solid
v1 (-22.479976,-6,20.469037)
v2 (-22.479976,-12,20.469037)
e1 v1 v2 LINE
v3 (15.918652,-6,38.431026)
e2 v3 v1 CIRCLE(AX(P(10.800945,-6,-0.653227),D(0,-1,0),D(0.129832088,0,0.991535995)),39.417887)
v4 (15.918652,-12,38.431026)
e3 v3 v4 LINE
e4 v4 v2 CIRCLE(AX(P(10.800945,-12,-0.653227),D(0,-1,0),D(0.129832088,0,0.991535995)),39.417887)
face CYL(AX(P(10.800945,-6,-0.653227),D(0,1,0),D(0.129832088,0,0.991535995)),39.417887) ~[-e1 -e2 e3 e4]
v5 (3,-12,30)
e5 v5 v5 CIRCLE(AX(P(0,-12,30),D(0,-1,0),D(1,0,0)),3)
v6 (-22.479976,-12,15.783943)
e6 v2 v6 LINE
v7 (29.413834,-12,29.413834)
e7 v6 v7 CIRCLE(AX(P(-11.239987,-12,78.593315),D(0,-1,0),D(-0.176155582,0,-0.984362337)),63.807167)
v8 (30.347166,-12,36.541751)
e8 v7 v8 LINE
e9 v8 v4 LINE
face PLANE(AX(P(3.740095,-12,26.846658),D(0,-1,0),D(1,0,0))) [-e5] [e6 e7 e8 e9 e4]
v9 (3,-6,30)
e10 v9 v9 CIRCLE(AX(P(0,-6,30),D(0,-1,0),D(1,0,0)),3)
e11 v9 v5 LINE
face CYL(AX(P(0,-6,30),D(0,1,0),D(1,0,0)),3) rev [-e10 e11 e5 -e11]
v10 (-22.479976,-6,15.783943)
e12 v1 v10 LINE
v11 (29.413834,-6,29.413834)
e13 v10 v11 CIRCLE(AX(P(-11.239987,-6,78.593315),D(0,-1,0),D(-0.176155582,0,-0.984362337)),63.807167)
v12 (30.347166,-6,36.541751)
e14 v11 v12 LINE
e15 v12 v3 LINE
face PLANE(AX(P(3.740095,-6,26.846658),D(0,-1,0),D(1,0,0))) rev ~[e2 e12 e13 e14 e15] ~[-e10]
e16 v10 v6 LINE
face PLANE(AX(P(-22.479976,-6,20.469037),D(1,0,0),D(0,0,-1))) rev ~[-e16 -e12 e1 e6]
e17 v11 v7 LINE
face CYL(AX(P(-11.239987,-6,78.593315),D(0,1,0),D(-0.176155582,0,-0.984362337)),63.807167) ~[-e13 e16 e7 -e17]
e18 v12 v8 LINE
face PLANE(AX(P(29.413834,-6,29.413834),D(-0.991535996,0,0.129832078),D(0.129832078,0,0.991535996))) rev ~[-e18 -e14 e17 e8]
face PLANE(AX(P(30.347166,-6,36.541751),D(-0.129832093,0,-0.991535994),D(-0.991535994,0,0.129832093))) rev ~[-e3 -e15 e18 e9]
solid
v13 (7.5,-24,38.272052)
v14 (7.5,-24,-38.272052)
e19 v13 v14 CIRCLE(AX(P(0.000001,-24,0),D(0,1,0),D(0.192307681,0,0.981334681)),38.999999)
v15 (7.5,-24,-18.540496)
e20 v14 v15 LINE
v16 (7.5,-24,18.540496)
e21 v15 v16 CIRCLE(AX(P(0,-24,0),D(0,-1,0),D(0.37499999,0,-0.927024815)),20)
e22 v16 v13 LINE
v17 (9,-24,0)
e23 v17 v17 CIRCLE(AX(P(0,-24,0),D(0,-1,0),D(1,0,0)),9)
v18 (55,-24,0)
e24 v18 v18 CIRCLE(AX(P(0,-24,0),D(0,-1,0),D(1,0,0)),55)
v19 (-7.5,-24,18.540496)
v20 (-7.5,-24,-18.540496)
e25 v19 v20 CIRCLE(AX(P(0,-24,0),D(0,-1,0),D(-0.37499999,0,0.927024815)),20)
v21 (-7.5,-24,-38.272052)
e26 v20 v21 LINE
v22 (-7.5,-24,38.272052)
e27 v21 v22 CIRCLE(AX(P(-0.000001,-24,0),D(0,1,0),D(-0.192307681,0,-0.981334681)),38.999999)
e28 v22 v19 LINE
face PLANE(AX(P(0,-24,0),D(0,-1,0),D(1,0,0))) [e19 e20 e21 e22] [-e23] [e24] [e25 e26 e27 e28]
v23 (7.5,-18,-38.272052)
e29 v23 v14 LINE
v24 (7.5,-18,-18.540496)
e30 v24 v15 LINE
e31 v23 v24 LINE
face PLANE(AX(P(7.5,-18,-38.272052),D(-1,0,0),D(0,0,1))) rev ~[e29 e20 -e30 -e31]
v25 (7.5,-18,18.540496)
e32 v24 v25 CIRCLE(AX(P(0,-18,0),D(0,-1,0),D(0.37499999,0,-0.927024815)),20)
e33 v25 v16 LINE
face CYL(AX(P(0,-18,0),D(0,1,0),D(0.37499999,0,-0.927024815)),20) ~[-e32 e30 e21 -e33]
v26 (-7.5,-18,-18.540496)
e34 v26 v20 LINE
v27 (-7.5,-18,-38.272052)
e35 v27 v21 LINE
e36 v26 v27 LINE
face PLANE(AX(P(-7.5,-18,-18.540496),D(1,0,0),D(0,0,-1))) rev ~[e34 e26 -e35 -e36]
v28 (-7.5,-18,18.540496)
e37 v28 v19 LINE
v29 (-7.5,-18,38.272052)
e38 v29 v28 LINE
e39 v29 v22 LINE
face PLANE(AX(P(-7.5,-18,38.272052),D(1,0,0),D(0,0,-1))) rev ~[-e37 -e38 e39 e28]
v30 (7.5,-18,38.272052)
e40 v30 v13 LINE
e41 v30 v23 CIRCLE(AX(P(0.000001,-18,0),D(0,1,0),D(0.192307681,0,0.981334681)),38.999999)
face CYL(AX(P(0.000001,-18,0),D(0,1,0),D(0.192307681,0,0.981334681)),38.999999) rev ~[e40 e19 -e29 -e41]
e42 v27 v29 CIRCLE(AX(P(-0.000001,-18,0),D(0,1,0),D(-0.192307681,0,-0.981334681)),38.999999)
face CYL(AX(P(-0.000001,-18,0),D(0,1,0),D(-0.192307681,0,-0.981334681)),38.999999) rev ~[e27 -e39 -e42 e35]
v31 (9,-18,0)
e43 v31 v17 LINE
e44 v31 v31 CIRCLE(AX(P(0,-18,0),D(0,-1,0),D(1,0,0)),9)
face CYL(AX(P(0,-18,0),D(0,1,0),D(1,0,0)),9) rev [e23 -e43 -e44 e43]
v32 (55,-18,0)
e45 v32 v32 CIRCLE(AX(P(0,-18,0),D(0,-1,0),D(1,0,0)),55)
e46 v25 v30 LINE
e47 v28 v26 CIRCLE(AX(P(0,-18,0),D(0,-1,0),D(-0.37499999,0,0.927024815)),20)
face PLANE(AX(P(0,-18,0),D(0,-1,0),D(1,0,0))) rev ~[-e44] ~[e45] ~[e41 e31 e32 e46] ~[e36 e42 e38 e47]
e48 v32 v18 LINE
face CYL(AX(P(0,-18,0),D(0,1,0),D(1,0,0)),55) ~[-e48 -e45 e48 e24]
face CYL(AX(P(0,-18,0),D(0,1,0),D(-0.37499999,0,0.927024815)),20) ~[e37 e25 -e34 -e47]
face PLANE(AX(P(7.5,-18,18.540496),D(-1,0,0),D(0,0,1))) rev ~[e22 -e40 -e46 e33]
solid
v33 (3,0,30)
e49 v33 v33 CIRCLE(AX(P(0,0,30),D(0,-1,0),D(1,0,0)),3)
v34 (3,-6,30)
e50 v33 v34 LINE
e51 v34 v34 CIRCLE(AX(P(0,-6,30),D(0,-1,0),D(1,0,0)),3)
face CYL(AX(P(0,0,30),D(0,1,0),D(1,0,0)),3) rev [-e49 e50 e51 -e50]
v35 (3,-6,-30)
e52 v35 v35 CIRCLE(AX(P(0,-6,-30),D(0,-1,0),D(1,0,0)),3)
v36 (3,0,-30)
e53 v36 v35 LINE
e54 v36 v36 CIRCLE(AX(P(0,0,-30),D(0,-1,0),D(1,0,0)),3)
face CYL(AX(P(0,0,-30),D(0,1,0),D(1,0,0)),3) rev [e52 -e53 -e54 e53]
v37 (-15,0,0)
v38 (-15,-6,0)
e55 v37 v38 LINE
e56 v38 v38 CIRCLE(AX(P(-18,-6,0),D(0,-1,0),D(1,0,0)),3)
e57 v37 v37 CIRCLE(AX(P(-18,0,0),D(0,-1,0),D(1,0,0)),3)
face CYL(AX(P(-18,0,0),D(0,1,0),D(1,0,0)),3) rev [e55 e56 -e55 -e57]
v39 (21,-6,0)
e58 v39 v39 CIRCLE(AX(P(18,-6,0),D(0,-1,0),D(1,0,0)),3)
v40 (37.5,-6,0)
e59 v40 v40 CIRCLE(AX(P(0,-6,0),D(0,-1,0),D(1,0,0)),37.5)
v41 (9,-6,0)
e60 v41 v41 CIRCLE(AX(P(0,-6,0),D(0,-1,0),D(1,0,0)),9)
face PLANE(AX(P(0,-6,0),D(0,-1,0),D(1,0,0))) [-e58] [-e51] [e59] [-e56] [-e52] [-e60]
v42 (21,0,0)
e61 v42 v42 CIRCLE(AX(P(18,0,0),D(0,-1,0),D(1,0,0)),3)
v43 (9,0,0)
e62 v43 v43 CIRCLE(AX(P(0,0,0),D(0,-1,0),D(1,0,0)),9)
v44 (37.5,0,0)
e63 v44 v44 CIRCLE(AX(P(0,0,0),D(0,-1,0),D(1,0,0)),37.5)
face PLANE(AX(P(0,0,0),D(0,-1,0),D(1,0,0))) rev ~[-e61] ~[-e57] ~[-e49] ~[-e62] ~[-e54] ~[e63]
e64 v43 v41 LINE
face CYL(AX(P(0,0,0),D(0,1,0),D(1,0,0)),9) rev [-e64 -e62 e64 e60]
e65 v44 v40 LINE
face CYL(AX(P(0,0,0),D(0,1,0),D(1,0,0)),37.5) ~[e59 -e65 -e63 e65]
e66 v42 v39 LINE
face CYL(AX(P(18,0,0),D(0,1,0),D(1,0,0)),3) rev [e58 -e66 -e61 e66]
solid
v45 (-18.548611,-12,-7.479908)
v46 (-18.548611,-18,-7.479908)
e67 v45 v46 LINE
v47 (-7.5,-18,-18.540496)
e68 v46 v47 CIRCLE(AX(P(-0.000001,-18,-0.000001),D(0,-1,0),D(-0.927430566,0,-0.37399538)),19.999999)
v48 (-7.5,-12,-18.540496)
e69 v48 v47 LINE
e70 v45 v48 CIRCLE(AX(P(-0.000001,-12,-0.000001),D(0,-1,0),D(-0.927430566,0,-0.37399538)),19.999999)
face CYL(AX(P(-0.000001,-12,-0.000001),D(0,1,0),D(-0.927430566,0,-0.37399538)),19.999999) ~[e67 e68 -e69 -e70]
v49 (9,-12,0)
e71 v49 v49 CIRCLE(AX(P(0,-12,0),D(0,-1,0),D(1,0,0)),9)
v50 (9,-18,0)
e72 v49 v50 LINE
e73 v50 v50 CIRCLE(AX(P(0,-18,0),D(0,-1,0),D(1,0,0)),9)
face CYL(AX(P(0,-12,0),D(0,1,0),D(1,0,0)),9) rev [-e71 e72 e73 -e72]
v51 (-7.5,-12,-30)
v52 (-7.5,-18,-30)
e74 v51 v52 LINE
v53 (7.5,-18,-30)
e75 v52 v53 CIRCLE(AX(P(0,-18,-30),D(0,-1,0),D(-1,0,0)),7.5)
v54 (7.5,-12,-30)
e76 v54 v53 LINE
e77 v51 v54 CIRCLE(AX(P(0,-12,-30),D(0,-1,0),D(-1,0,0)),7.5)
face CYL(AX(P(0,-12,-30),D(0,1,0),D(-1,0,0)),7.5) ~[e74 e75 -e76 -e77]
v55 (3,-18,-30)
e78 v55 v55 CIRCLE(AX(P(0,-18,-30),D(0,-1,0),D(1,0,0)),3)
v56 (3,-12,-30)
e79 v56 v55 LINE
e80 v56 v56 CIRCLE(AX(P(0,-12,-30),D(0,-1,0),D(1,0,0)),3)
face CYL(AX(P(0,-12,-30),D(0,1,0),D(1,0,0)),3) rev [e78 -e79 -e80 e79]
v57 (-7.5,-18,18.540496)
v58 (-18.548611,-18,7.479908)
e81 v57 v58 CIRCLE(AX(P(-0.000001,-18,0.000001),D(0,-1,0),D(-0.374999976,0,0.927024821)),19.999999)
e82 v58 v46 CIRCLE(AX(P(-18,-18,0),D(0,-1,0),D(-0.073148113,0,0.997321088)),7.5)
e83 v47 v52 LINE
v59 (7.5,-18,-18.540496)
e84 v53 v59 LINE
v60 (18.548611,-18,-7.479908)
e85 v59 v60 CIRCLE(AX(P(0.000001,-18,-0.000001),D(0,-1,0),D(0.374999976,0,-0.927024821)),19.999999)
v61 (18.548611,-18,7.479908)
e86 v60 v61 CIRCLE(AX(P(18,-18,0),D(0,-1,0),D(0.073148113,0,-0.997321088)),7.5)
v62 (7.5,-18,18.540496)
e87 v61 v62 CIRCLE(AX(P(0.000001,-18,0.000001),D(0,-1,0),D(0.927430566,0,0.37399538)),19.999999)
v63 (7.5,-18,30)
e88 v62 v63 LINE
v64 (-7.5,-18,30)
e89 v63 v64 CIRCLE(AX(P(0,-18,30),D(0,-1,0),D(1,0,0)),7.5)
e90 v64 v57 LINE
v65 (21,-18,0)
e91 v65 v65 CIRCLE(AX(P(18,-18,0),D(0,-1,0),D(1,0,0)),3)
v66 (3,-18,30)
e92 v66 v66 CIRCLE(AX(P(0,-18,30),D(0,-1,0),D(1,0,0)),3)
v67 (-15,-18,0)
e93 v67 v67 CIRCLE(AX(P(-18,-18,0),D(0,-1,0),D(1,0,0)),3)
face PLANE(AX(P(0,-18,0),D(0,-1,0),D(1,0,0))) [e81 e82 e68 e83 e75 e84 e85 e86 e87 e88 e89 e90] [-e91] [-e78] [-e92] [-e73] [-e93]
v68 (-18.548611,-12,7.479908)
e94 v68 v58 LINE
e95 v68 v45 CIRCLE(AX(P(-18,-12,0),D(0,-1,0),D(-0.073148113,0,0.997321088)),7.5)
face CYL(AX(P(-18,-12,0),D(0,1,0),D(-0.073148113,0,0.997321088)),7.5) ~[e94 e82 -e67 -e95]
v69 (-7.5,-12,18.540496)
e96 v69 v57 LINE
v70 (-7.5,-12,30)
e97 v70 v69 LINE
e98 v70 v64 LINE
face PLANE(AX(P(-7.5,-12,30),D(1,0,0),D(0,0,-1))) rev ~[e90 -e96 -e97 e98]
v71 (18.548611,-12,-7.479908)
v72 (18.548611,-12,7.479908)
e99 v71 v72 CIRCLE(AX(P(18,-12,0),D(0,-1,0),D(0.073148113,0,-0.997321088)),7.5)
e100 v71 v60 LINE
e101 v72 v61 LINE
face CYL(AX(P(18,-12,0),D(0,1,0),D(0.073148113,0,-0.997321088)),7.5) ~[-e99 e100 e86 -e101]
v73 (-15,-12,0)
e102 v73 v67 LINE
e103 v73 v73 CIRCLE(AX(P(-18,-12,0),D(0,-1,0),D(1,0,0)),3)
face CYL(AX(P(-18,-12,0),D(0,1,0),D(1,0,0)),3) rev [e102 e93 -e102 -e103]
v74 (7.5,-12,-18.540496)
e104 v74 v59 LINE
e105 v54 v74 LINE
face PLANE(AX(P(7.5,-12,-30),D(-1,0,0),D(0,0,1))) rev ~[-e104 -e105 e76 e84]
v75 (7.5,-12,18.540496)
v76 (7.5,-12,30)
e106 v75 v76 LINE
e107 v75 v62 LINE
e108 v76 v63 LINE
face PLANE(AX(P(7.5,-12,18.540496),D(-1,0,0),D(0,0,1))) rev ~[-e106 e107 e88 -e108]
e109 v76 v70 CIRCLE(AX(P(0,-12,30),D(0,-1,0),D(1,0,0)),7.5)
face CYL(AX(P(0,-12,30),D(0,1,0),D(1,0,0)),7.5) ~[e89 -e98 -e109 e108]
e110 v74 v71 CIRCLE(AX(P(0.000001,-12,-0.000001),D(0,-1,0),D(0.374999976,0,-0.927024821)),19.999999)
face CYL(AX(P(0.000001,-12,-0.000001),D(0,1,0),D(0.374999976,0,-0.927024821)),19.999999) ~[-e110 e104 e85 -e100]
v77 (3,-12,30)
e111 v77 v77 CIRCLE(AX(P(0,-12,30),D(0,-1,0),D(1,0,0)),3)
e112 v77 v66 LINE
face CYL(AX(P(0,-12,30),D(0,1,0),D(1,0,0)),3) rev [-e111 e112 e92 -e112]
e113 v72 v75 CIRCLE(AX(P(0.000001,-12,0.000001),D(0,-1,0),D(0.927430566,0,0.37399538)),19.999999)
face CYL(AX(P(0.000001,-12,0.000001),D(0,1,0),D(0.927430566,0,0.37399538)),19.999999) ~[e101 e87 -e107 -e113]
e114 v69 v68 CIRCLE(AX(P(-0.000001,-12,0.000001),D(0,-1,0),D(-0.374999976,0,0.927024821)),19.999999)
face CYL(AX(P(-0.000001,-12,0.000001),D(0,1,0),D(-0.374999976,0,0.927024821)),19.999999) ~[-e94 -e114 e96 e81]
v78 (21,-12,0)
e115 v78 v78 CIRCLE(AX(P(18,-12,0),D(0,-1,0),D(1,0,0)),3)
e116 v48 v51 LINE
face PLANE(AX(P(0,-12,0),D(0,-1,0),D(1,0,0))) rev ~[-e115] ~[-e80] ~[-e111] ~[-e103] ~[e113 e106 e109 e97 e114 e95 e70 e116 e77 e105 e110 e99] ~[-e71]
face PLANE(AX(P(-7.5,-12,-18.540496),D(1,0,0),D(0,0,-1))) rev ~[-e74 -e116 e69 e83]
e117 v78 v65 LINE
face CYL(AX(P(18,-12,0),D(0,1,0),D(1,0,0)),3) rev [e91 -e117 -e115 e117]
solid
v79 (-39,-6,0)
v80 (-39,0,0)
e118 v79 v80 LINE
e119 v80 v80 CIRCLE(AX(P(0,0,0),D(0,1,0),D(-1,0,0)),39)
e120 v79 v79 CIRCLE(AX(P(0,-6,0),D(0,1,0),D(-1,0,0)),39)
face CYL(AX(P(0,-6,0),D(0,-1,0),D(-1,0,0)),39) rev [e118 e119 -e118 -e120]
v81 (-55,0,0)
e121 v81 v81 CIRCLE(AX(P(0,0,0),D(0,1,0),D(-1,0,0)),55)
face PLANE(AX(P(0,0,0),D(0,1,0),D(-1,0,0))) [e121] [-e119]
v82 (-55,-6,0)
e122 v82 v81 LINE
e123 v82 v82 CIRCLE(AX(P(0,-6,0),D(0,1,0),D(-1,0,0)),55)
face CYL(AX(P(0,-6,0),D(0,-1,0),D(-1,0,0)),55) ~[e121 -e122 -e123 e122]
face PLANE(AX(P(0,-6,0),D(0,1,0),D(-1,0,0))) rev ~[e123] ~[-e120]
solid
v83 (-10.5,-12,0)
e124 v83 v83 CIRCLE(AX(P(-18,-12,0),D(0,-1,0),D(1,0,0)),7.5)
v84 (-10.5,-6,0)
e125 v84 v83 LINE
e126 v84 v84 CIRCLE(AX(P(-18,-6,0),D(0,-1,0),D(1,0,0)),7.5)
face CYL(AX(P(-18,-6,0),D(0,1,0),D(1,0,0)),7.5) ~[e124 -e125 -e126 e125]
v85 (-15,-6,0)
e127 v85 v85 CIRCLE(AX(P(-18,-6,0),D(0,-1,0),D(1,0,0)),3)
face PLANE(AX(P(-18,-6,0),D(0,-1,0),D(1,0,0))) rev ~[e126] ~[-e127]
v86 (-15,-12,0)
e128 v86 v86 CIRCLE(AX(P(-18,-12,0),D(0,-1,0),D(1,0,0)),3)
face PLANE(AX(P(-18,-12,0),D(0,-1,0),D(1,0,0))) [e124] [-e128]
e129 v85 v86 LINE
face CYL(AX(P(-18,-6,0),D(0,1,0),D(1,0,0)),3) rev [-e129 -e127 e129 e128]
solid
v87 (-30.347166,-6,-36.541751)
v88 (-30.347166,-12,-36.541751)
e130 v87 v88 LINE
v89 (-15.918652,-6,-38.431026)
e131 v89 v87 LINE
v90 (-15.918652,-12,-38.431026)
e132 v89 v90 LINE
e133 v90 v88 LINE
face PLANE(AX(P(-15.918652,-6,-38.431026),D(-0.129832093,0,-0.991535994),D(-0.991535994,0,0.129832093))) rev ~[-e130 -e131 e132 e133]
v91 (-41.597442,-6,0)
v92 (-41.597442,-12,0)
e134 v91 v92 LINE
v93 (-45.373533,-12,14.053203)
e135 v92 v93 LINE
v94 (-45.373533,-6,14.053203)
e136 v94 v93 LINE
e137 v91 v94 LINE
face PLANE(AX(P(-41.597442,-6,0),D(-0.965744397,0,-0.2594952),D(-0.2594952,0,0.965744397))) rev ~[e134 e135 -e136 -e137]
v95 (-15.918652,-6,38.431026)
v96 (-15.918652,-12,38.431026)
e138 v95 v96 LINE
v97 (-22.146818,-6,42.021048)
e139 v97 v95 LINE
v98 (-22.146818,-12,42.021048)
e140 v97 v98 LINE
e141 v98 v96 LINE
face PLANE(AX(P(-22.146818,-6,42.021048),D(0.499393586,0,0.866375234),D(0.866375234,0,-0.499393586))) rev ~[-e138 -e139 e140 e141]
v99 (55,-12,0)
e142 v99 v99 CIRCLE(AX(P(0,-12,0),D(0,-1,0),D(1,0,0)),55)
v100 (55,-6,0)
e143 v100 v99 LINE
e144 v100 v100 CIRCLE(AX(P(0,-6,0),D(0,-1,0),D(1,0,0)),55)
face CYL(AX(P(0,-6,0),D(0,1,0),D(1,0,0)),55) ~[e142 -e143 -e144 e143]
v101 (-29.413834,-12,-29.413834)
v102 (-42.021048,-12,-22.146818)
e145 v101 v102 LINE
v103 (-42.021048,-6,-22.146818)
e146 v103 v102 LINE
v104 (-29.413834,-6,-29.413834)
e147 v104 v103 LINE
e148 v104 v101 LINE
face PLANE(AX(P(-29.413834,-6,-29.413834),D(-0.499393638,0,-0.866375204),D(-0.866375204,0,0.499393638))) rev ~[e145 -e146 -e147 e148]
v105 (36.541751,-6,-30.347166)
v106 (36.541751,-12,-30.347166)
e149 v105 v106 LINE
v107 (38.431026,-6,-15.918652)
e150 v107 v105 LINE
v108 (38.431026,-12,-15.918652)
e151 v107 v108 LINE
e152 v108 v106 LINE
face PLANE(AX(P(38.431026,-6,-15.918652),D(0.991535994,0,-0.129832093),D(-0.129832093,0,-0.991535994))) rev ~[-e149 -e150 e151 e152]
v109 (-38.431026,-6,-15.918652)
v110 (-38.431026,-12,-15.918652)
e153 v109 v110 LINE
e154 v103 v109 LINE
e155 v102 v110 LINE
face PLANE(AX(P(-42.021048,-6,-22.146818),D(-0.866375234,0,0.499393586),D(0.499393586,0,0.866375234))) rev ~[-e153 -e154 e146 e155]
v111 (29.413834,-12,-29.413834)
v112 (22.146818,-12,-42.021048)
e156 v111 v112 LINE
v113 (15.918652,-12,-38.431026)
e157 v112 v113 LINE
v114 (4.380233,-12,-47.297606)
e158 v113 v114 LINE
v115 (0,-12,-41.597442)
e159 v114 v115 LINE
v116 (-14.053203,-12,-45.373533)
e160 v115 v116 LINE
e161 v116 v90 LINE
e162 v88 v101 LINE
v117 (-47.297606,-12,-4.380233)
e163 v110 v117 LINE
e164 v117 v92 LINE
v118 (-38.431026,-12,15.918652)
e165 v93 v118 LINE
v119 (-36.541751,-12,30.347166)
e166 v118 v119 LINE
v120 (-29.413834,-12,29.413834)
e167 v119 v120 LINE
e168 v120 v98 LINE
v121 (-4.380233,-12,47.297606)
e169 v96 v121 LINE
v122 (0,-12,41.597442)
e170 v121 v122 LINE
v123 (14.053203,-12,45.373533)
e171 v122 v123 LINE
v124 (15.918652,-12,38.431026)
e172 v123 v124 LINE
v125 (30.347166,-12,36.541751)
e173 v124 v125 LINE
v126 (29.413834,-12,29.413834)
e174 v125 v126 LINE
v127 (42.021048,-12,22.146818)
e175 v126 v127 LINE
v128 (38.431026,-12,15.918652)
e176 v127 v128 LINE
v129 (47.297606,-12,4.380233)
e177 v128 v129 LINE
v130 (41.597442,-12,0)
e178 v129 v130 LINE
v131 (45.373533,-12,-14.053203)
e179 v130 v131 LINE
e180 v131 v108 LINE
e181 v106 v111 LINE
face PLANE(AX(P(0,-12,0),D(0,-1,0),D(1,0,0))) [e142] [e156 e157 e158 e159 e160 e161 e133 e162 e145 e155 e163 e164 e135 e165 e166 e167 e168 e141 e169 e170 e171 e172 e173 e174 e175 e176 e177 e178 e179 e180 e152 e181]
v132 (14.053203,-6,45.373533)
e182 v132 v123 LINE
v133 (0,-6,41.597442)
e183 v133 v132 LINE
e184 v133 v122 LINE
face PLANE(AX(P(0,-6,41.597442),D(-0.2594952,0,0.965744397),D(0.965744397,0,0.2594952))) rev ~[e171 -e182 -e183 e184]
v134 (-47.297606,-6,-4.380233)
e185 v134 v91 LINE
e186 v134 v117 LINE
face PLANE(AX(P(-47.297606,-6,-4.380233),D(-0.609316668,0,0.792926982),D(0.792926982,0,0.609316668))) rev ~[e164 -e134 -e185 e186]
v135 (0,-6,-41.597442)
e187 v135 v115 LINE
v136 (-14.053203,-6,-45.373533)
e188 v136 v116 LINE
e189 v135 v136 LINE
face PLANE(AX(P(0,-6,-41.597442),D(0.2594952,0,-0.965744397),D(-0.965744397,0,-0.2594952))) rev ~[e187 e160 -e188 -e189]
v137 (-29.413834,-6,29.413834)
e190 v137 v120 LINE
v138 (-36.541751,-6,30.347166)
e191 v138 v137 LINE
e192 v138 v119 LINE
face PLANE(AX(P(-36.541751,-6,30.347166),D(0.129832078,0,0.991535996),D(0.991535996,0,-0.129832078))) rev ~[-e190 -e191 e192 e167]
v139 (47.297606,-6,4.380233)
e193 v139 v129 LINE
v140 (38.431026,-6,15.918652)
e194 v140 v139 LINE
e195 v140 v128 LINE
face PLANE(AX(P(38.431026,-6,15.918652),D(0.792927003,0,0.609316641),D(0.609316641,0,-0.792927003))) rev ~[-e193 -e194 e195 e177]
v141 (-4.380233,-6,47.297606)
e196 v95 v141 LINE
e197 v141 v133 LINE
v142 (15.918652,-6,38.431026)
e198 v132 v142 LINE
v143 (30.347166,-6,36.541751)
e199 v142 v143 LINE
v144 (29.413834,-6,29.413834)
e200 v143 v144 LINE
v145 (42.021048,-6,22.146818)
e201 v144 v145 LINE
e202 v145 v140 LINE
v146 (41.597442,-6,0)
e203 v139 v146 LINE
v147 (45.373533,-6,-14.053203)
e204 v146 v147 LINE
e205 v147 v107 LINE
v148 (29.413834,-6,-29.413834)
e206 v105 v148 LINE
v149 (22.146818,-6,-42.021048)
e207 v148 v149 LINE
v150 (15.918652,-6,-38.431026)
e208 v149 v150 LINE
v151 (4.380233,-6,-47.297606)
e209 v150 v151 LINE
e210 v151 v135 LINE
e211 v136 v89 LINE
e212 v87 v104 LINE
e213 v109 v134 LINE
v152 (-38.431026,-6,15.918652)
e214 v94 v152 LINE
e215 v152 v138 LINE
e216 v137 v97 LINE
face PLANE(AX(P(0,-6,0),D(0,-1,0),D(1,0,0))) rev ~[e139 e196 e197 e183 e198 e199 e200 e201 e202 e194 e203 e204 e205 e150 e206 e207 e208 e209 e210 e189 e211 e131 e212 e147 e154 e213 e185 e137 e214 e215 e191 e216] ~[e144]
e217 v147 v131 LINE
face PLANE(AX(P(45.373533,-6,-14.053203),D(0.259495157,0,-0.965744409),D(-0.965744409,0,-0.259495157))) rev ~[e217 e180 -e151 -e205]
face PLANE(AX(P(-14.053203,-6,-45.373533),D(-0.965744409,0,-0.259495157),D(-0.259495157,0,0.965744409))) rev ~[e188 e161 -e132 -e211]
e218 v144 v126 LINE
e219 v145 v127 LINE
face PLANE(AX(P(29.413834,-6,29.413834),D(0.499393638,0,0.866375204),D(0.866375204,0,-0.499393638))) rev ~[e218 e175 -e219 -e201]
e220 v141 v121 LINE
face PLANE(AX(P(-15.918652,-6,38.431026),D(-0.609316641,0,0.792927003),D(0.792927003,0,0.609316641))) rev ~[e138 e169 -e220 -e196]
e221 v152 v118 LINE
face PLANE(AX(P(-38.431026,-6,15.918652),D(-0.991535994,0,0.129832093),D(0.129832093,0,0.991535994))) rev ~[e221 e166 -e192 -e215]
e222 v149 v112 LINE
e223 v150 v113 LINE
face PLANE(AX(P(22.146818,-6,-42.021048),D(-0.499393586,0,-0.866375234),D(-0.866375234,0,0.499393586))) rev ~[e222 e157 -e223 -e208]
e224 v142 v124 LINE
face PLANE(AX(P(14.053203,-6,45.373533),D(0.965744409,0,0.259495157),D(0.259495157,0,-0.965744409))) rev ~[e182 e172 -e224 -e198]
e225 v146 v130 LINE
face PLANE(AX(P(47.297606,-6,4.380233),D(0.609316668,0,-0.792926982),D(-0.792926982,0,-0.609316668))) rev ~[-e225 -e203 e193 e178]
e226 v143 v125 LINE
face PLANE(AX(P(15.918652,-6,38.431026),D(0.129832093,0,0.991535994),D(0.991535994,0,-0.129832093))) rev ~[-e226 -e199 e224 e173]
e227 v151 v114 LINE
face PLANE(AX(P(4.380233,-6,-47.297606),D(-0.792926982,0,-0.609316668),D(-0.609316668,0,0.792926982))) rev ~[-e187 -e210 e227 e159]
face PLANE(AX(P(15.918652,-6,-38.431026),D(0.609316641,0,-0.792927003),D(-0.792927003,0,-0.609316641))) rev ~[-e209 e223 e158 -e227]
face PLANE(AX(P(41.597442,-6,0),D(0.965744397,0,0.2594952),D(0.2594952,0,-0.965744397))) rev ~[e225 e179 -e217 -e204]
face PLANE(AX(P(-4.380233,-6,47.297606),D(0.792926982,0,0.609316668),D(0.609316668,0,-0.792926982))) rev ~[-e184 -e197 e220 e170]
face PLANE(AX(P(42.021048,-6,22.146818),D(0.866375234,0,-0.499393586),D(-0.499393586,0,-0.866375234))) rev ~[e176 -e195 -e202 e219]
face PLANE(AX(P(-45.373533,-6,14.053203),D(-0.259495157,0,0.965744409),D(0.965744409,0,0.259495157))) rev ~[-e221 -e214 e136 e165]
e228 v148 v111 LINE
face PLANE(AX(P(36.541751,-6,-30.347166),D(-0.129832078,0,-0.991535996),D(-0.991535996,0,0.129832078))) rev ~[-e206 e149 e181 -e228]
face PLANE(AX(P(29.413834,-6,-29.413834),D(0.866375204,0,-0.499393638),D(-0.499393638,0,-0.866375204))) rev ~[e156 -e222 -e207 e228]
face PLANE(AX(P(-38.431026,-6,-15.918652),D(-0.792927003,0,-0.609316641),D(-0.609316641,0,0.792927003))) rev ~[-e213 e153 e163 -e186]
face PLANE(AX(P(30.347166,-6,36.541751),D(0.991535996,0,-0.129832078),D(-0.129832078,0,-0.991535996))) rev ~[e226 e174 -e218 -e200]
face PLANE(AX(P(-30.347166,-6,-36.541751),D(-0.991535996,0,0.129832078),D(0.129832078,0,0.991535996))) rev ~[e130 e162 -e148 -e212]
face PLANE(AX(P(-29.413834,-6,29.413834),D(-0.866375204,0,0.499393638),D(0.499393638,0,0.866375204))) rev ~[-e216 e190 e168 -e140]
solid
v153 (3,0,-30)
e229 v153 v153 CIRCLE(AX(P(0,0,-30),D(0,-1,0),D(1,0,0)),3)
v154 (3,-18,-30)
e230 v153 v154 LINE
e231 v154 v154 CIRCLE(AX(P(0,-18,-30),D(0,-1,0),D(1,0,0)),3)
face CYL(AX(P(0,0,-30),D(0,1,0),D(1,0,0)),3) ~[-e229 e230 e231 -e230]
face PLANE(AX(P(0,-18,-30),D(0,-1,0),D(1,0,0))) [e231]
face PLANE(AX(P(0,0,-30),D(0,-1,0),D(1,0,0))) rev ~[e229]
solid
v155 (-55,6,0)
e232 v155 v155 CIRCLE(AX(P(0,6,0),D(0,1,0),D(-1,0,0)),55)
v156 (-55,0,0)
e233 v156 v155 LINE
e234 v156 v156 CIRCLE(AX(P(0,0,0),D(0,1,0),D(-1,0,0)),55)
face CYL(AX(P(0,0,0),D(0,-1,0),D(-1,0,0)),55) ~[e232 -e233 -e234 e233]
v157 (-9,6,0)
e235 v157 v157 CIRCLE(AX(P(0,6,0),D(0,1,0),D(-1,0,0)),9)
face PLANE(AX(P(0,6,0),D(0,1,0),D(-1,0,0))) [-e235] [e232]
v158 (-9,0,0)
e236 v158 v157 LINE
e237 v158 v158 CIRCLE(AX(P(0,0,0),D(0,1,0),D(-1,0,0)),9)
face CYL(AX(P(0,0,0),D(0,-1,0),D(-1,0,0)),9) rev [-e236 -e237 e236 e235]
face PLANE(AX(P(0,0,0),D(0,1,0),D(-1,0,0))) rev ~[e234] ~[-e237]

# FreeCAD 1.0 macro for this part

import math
import FreeCAD as App
import Part
import Sketcher

V = App.Vector

doc = App.newDocument("Part")
body = doc.addObject("PartDesign::Body", "Body")

sketch1 = body.newObject("Sketcher::SketchObject", "Sketch")
sketch1.AttachmentSupport = (doc.getObject("XZ_Plane"), [""])
sketch1.MapMode = "FlatFace"
sketch1.addGeometry(Part.Circle(V(0, 0, 0), V(0, 0, 1), 37.5), False)
sketch1.addGeometry(Part.Circle(V(0, -30, 0), V(0, 0, 1), 3), False)
sketch1.addGeometry(Part.Circle(V(-18, 0, 0), V(0, 0, 1), 3), False)
sketch1.addGeometry(Part.Circle(V(0, 0, 0), V(0, 0, 1), 9), False)
sketch1.addGeometry(Part.Circle(V(18, 0, 0), V(0, 0, 1), 3), False)
sketch1.addGeometry(Part.Circle(V(0, 30, 0), V(0, 0, 1), 3), False)
sketch1.addConstraint(Sketcher.Constraint("Coincident", 0, 3, -1, 1))
sketch1.addConstraint(Sketcher.Constraint("Coincident", 3, 3, -1, 1))
sketch1.addConstraint(Sketcher.Constraint("Equal", 1, 2))
sketch1.addConstraint(Sketcher.Constraint("Equal", 2, 4))
sketch1.addConstraint(Sketcher.Constraint("Equal", 4, 5))
sketch1.addConstraint(Sketcher.Constraint("Symmetric", 2, 3, 4, 3, -1, 1))
sketch1.addConstraint(Sketcher.Constraint("Symmetric", 1, 3, 5, 3, -1, 1))
sketch1.addConstraint(Sketcher.Constraint("PointOnObject", 1, 3, -2))
sketch1.addConstraint(Sketcher.Constraint("PointOnObject", 2, 3, -1))
sketch1.addConstraint(Sketcher.Constraint("Diameter", 0, 75.0))
sketch1.addConstraint(Sketcher.Constraint("Diameter", 1, 6.0))
sketch1.addConstraint(Sketcher.Constraint("Diameter", 3, 18.0))
sketch1.addConstraint(Sketcher.Constraint("DistanceY", 1, 3, -1, 1, 30.0))
sketch1.addConstraint(Sketcher.Constraint("DistanceX", 2, 3, -1, 1, 18.0))
pad1 = body.newObject("PartDesign::Pad", "Pad")
pad1.Profile = sketch1
pad1.Length = 6
body2 = doc.addObject("PartDesign::Body", "Body001")

sketch2 = body2.newObject("Sketcher::SketchObject", "Sketch001")
sketch2.AttachmentSupport = (doc.getObject("XZ_Plane001"), [""])
sketch2.MapMode = "FlatFace"
sketch2.AttachmentOffset = App.Placement(V(0, 0, 6), App.Rotation())
sketch2.addGeometry(Part.Circle(V(0, 0, 0), V(0, 0, 1), 55), False)
sketch2.addGeometry(Part.LineSegment(V(29.413834, 29.413834, 0), V(42.021048, 22.146818, 0)), False)
sketch2.addGeometry(Part.LineSegment(V(42.021048, 22.146818, 0), V(38.431026, 15.918652, 0)), False)
sketch2.addGeometry(Part.LineSegment(V(38.431026, 15.918652, 0), V(47.297606, 4.380233, 0)), False)
sketch2.addGeometry(Part.LineSegment(V(47.297606, 4.380233, 0), V(41.597442, 0, 0)), False)
sketch2.addGeometry(Part.LineSegment(V(41.597442, 0, 0), V(45.373533, -14.053203, 0)), False)
sketch2.addGeometry(Part.LineSegment(V(45.373533, -14.053203, 0), V(38.431026, -15.918652, 0)), False)
sketch2.addGeometry(Part.LineSegment(V(38.431026, -15.918652, 0), V(36.541751, -30.347166, 0)), False)
sketch2.addGeometry(Part.LineSegment(V(36.541751, -30.347166, 0), V(29.413834, -29.413834, 0)), False)
sketch2.addGeometry(Part.LineSegment(V(29.413834, -29.413834, 0), V(22.146818, -42.021048, 0)), False)
sketch2.addGeometry(Part.LineSegment(V(22.146818, -42.021048, 0), V(15.918652, -38.431026, 0)), False)
sketch2.addGeometry(Part.LineSegment(V(15.918652, -38.431026, 0), V(4.380233, -47.297606, 0)), False)
sketch2.addGeometry(Part.LineSegment(V(4.380233, -47.297606, 0), V(0, -41.597442, 0)), False)
sketch2.addGeometry(Part.LineSegment(V(0, -41.597442, 0), V(-14.053203, -45.373533, 0)), False)
sketch2.addGeometry(Part.LineSegment(V(-14.053203, -45.373533, 0), V(-15.918652, -38.431026, 0)), False)
sketch2.addGeometry(Part.LineSegment(V(-15.918652, -38.431026, 0), V(-30.347166, -36.541751, 0)), False)
sketch2.addGeometry(Part.LineSegment(V(-30.347166, -36.541751, 0), V(-29.413834, -29.413834, 0)), False)
sketch2.addGeometry(Part.LineSegment(V(-29.413834, -29.413834, 0), V(-42.021048, -22.146818, 0)), False)
sketch2.addGeometry(Part.LineSegment(V(-42.021048, -22.146818, 0), V(-38.431026, -15.918652, 0)), False)
sketch2.addGeometry(Part.LineSegment(V(-38.431026, -15.918652, 0), V(-47.297606, -4.380233, 0)), False)
sketch2.addGeometry(Part.LineSegment(V(-47.297606, -4.380233, 0), V(-41.597442, 0, 0)), False)
sketch2.addGeometry(Part.LineSegment(V(-41.597442, 0, 0), V(-45.373533, 14.053203, 0)), False)
sketch2.addGeometry(Part.LineSegment(V(-45.373533, 14.053203, 0), V(-38.431026, 15.918652, 0)), False)
sketch2.addGeometry(Part.LineSegment(V(-38.431026, 15.918652, 0), V(-36.541751, 30.347166, 0)), False)
sketch2.addGeometry(Part.LineSegment(V(-36.541751, 30.347166, 0), V(-29.413834, 29.413834, 0)), False)
sketch2.addGeometry(Part.LineSegment(V(-29.413834, 29.413834, 0), V(-22.146818, 42.021048, 0)), False)
sketch2.addGeometry(Part.LineSegment(V(-22.146818, 42.021048, 0), V(-15.918652, 38.431026, 0)), False)
sketch2.addGeometry(Part.LineSegment(V(-15.918652, 38.431026, 0), V(-4.380233, 47.297606, 0)), False)
sketch2.addGeometry(Part.LineSegment(V(-4.380233, 47.297606, 0), V(0, 41.597442, 0)), False)
sketch2.addGeometry(Part.LineSegment(V(0, 41.597442, 0), V(14.053203, 45.373533, 0)), False)
sketch2.addGeometry(Part.LineSegment(V(14.053203, 45.373533, 0), V(15.918652, 38.431026, 0)), False)
sketch2.addGeometry(Part.LineSegment(V(15.918652, 38.431026, 0), V(30.347166, 36.541751, 0)), False)
sketch2.addGeometry(Part.LineSegment(V(30.347166, 36.541751, 0), V(29.413834, 29.413834, 0)), False)
sketch2.addConstraint(Sketcher.Constraint("Coincident", 1, 2, 2, 1))
sketch2.addConstraint(Sketcher.Constraint("Coincident", 2, 2, 3, 1))
sketch2.addConstraint(Sketcher.Constraint("Coincident", 3, 2, 4, 1))
sketch2.addConstraint(Sketcher.Constraint("Coincident", 4, 2, 5, 1))
sketch2.addConstraint(Sketcher.Constraint("Coincident", 5, 2, 6, 1))
sketch2.addConstraint(Sketcher.Constraint("Coincident", 6, 2, 7, 1))
sketch2.addConstraint(Sketcher.Constraint("Coincident", 7, 2, 8, 1))
sketch2.addConstraint(Sketcher.Constraint("Coincident", 8, 2, 9, 1))
sketch2.addConstraint(Sketcher.Constraint("Coincident", 9, 2, 10, 1))
sketch2.addConstraint(Sketcher.Constraint("Coincident", 10, 2, 11, 1))
sketch2.addConstraint(Sketcher.Constraint("Coincident", 11, 2, 12, 1))
sketch2.addConstraint(Sketcher.Constraint("Coincident", 12, 2, 13, 1))
sketch2.addConstraint(Sketcher.Constraint("Coincident", 13, 2, 14, 1))
sketch2.addConstraint(Sketcher.Constraint("Coincident", 14, 2, 15, 1))
sketch2.addConstraint(Sketcher.Constraint("Coincident", 15, 2, 16, 1))
sketch2.addConstraint(Sketcher.Constraint("Coincident", 16, 2, 17, 1))
sketch2.addConstraint(Sketcher.Constraint("Coincident", 17, 2, 18, 1))
sketch2.addConstraint(Sketcher.Constraint("Coincident", 18, 2, 19, 1))
sketch2.addConstraint(Sketcher.Constraint("Coincident", 19, 2, 20, 1))
sketch2.addConstraint(Sketcher.Constraint("Coincident", 20, 2, 21, 1))
sketch2.addConstraint(Sketcher.Constraint("Coincident", 21, 2, 22, 1))
sketch2.addConstraint(Sketcher.Constraint("Coincident", 22, 2, 23, 1))
sketch2.addConstraint(Sketcher.Constraint("Coincident", 23, 2, 24, 1))
sketch2.addConstraint(Sketcher.Constraint("Coincident", 24, 2, 25, 1))
sketch2.addConstraint(Sketcher.Constraint("Coincident", 25, 2, 26, 1))
sketch2.addConstraint(Sketcher.Constraint("Coincident", 26, 2, 27, 1))
sketch2.addConstraint(Sketcher.Constraint("Coincident", 27, 2, 28, 1))
sketch2.addConstraint(Sketcher.Constraint("Coincident", 28, 2, 29, 1))
sketch2.addConstraint(Sketcher.Constraint("Coincident", 29, 2, 30, 1))
sketch2.addConstraint(Sketcher.Constraint("Coincident", 30, 2, 31, 1))
sketch2.addConstraint(Sketcher.Constraint("Coincident", 31, 2, 32, 1))
sketch2.addConstraint(Sketcher.Constraint("Coincident", 32, 2, 1, 1))
sketch2.addConstraint(Sketcher.Constraint("Coincident", 0, 3, -1, 1))
sketch2.addConstraint(Sketcher.Constraint("Symmetric", 1, 2, 17, 2, -1, 1))
sketch2.addConstraint(Sketcher.Constraint("Symmetric", 2, 2, 18, 2, -1, 1))
sketch2.addConstraint(Sketcher.Constraint("Symmetric", 3, 2, 19, 2, -1, 1))
sketch2.addConstraint(Sketcher.Constraint("Symmetric", 4, 2, 20, 2, -1, 1))
sketch2.addConstraint(Sketcher.Constraint("Symmetric", 5, 2, 21, 2, -1, 1))
sketch2.addConstraint(Sketcher.Constraint("Symmetric", 6, 2, 22, 2, -1, 1))
sketch2.addConstraint(Sketcher.Constraint("Symmetric", 7, 2, 23, 2, -1, 1))
sketch2.addConstraint(Sketcher.Constraint("Symmetric", 8, 2, 24, 2, -1, 1))
sketch2.addConstraint(Sketcher.Constraint("Symmetric", 9, 2, 25, 2, -1, 1))
sketch2.addConstraint(Sketcher.Constraint("Symmetric", 10, 2, 26, 2, -1, 1))
sketch2.addConstraint(Sketcher.Constraint("Symmetric", 11, 2, 27, 2, -1, 1))
sketch2.addConstraint(Sketcher.Constraint("Symmetric", 12, 2, 28, 2, -1, 1))
sketch2.addConstraint(Sketcher.Constraint("Symmetric", 13, 2, 29, 2, -1, 1))
sketch2.addConstraint(Sketcher.Constraint("Symmetric", 14, 2, 30, 2, -1, 1))
sketch2.addConstraint(Sketcher.Constraint("Symmetric", 15, 2, 31, 2, -1, 1))
sketch2.addConstraint(Sketcher.Constraint("Symmetric", 16, 2, 32, 2, -1, 1))
sketch2.addConstraint(Sketcher.Constraint("Symmetric", 10, 2, 14, 2, -2))
sketch2.addConstraint(Sketcher.Constraint("Symmetric", 8, 2, 16, 2, -2))
sketch2.addConstraint(Sketcher.Constraint("Symmetric", 6, 2, 18, 2, -2))
sketch2.addConstraint(Sketcher.Constraint("PointOnObject", 4, 2, -1))
sketch2.addConstraint(Sketcher.Constraint("PointOnObject", 12, 2, -2))
sketch2.addConstraint(Sketcher.Constraint("Perpendicular", 1, 2))
sketch2.addConstraint(Sketcher.Constraint("Perpendicular", 3, 4))
sketch2.addConstraint(Sketcher.Constraint("Perpendicular", 5, 6))
sketch2.addConstraint(Sketcher.Constraint("Perpendicular", 7, 8))
sketch2.addConstraint(Sketcher.Constraint("Parallel", 2, 9))
sketch2.addConstraint(Sketcher.Constraint("Perpendicular", 9, 10))
sketch2.addConstraint(Sketcher.Constraint("Parallel", 4, 11))
sketch2.addConstraint(Sketcher.Constraint("Perpendicular", 11, 12))
sketch2.addConstraint(Sketcher.Constraint("Parallel", 6, 13))
sketch2.addConstraint(Sketcher.Constraint("Perpendicular", 13, 14))
sketch2.addConstraint(Sketcher.Constraint("Parallel", 8, 15))
sketch2.addConstraint(Sketcher.Constraint("Perpendicular", 15, 16))
sketch2.addConstraint(Sketcher.Constraint("Equal", 1, 3))
sketch2.addConstraint(Sketcher.Constraint("Equal", 2, 4))
sketch2.addConstraint(Sketcher.Constraint("Equal", 3, 5))
sketch2.addConstraint(Sketcher.Constraint("Equal", 5, 7))
sketch2.addConstraint(Sketcher.Constraint("Equal", 7, 9))
sketch2.addConstraint(Sketcher.Constraint("Equal", 8, 10))
sketch2.addConstraint(Sketcher.Constraint("Equal", 9, 11))
sketch2.addConstraint(Sketcher.Constraint("Equal", 10, 12))
sketch2.addConstraint(Sketcher.Constraint("Diameter", 0, 110.0))
sketch2.addConstraint(Sketcher.Constraint("DistanceY", 7, 2, 3, 2, 34.727399))
sketch2.addConstraint(Sketcher.Constraint("DistanceX", 8, 2, 5, 2, 15.959699))
sketch2.addConstraint(Sketcher.Constraint("DistanceX", 10, 2, 7, 2, 20.623099))
sketch2.addConstraint(Sketcher.Constraint("DistanceX", 11, 2, 8, 2, 25.033601))
pad2 = body2.newObject("PartDesign::Pad", "Pad001")
pad2.Profile = sketch2
pad2.Length = 6
body3 = doc.addObject("PartDesign::Body", "Body002")

sketch3 = body3.newObject("Sketcher::SketchObject", "Sketch002")
sketch3.AttachmentSupport = (doc.getObject("XZ_Plane002"), [""])
sketch3.MapMode = "FlatFace"
sketch3.AttachmentOffset = App.Placement(V(0, 0, 6), App.Rotation())
sketch3.addGeometry(Part.LineSegment(V(29.413834, 29.413834, 0), V(30.347166, 36.541751, 0)), False)
sketch3.addGeometry(Part.LineSegment(V(30.347166, 36.541751, 0), V(15.918652, 38.431026, 0)), False)
sketch3.addGeometry(Part.ArcOfCircle(Part.Circle(V(10.800945, -0.653227, 0), V(0, 0, 1), 39.417887), math.radians(82.540111), math.radians(147.598098)), False)
sketch3.addGeometry(Part.LineSegment(V(-22.479976, 20.469037, 0), V(-22.479976, 15.783943, 0)), False)
sketch3.addGeometry(Part.ArcOfCircle(Part.Circle(V(-11.239987, 78.593315, 0), V(0, 0, 1), 63.807167), math.radians(-100.145913), math.radians(-50.421437)), False)
sketch3.addGeometry(Part.Circle(V(0, 30, 0), V(0, 0, 1), 3), False)
sketch3.addConstraint(Sketcher.Constraint("Coincident", 0, 2, 1, 1))
sketch3.addConstraint(Sketcher.Constraint("Tangent", 1, 2, 2, 1))
sketch3.addConstraint(Sketcher.Constraint("Coincident", 2, 2, 3, 1))
sketch3.addConstraint(Sketcher.Constraint("Coincident", 3, 2, 4, 1))
sketch3.addConstraint(Sketcher.Constraint("Coincident", 4, 2, 0, 1))
sketch3.addConstraint(Sketcher.Constraint("Vertical", 3))
sketch3.addConstraint(Sketcher.Constraint("PointOnObject", 5, 3, -2))
sketch3.addConstraint(Sketcher.Constraint("Perpendicular", 0, 1))
sketch3.addConstraint(Sketcher.Constraint("Diameter", 5, 6.0))
sketch3.addConstraint(Sketcher.Constraint("DistanceY", -1, 1, 5, 3, 30.0))
sketch3.addConstraint(Sketcher.Constraint("Radius", 2, 39.417887))
sketch3.addConstraint(Sketcher.Constraint("Radius", 4, 63.807167))
sketch3.addConstraint(Sketcher.Constraint("Distance", 1, 14.55168))
sketch3.addConstraint(Sketcher.Constraint("DistanceY", 3, 2, 3, 1, 4.685094))
sketch3.addConstraint(Sketcher.Constraint("DistanceY", -1, 1, 0, 2, 36.541751))
sketch3.addConstraint(Sketcher.Constraint("DistanceX", 2, 3, 0, 2, 19.546221))
sketch3.addConstraint(Sketcher.Constraint("DistanceX", 4, 3, 1, 2, 27.158639))
sketch3.addConstraint(Sketcher.Constraint("DistanceY", 1, 2, 4, 3, 40.162289))
sketch3.addConstraint(Sketcher.Constraint("DistanceX", -1, 1, 2, 3, 10.800945))
pad3 = body3.newObject("PartDesign::Pad", "Pad002")
pad3.Profile = sketch3
pad3.Length = 6
body4 = doc.addObject("PartDesign::Body", "Body003")

sketch4 = body4.newObject("Sketcher::SketchObject", "Sketch003")
sketch4.AttachmentSupport = (doc.getObject("XZ_Plane003"), [""])
sketch4.MapMode = "FlatFace"
sketch4.addGeometry(Part.Circle(V(0, -30, 0), V(0, 0, 1), 3), False)
sketch4.addConstraint(Sketcher.Constraint("PointOnObject", 0, 3, -2))
sketch4.addConstraint(Sketcher.Constraint("Diameter", 0, 6.0))
sketch4.addConstraint(Sketcher.Constraint("DistanceY", 0, 3, -1, 1, 30.0))
pad4 = body4.newObject("PartDesign::Pad", "Pad003")
pad4.Profile = sketch4
pad4.Length = 18
body5 = doc.addObject("PartDesign::Body", "Body004")

sketch5 = body5.newObject("Sketcher::SketchObject", "Sketch004")
sketch5.AttachmentSupport = (doc.getObject("XZ_Plane004"), [""])
sketch5.MapMode = "FlatFace"
sketch5.AttachmentOffset = App.Placement(V(0, 0, 6), App.Rotation())
sketch5.addGeometry(Part.Circle(V(0, 0, 0), V(0, 0, 1), 55), False)
sketch5.addGeometry(Part.Circle(V(0, 0, 0), V(0, 0, 1), 39), False)
sketch5.addConstraint(Sketcher.Constraint("Coincident", 0, 3, -1, 1))
sketch5.addConstraint(Sketcher.Constraint("Coincident", 1, 3, -1, 1))
sketch5.addConstraint(Sketcher.Constraint("Diameter", 0, 110.0))
sketch5.addConstraint(Sketcher.Constraint("Diameter", 1, 78.0))
pad5 = body5.newObject("PartDesign::Pad", "Pad004")
pad5.Profile = sketch5
pad5.Length = 6
pad5.Reversed = True
body6 = doc.addObject("PartDesign::Body", "Body005")

sketch6 = body6.newObject("Sketcher::SketchObject", "Sketch005")
sketch6.AttachmentSupport = (doc.getObject("XZ_Plane005"), [""])
sketch6.MapMode = "FlatFace"
sketch6.addGeometry(Part.Circle(V(0, 0, 0), V(0, 0, 1), 55), False)
sketch6.addGeometry(Part.Circle(V(0, 0, 0), V(0, 0, 1), 9), False)
sketch6.addConstraint(Sketcher.Constraint("Coincident", 0, 3, -1, 1))
sketch6.addConstraint(Sketcher.Constraint("Coincident", 1, 3, -1, 1))
sketch6.addConstraint(Sketcher.Constraint("Diameter", 0, 110.0))
sketch6.addConstraint(Sketcher.Constraint("Diameter", 1, 18.0))
pad6 = body6.newObject("PartDesign::Pad", "Pad005")
pad6.Profile = sketch6
pad6.Length = 6
pad6.Reversed = True
body7 = doc.addObject("PartDesign::Body", "Body006")

sketch7 = body7.newObject("Sketcher::SketchObject", "Sketch006")
sketch7.AttachmentSupport = (doc.getObject("XZ_Plane006"), [""])
sketch7.MapMode = "FlatFace"
sketch7.AttachmentOffset = App.Placement(V(0, 0, 12), App.Rotation())
sketch7.addGeometry(Part.LineSegment(V(7.5, 18.540496, 0), V(7.5, 30, 0)), False)
sketch7.addGeometry(Part.ArcOfCircle(Part.Circle(V(0, 30, 0), V(0, 0, 1), 7.5), math.radians(0), math.radians(180)), False)
sketch7.addGeometry(Part.LineSegment(V(-7.5, 30, 0), V(-7.5, 18.540496, 0)), False)
sketch7.addGeometry(Part.ArcOfCircle(Part.Circle(V(-0.000001, 0.000001, 0), V(0, 0, 1), 19.999999), math.radians(112.024311), math.radians(158.037765)), False)
sketch7.addGeometry(Part.ArcOfCircle(Part.Circle(V(-18, 0, 0), V(0, 0, 1), 7.5), math.radians(94.194825), math.radians(265.805175)), False)
sketch7.addGeometry(Part.ArcOfCircle(Part.Circle(V(-0.000001, -0.000001, 0), V(0, 0, 1), 19.999999), math.radians(-158.037765), math.radians(-112.024311)), False)
sketch7.addGeometry(Part.LineSegment(V(-7.5, -18.540496, 0), V(-7.5, -30, 0)), False)
sketch7.addGeometry(Part.ArcOfCircle(Part.Circle(V(0, -30, 0), V(0, 0, 1), 7.5), math.radians(180), math.radians(360)), False)
sketch7.addGeometry(Part.LineSegment(V(7.5, -30, 0), V(7.5, -18.540496, 0)), False)
sketch7.addGeometry(Part.ArcOfCircle(Part.Circle(V(0.000001, -0.000001, 0), V(0, 0, 1), 19.999999), math.radians(-67.975689), math.radians(-21.962235)), False)
sketch7.addGeometry(Part.ArcOfCircle(Part.Circle(V(18, 0, 0), V(0, 0, 1), 7.5), math.radians(-85.805175), math.radians(85.805175)), False)
sketch7.addGeometry(Part.ArcOfCircle(Part.Circle(V(0.000001, 0.000001, 0), V(0, 0, 1), 19.999999), math.radians(21.962235), math.radians(67.975689)), False)
sketch7.addGeometry(Part.Circle(V(0, -30, 0), V(0, 0, 1), 3), False)
sketch7.addGeometry(Part.Circle(V(-18, 0, 0), V(0, 0, 1), 3), False)
sketch7.addGeometry(Part.Circle(V(0, 0, 0), V(0, 0, 1), 9), False)
sketch7.addGeometry(Part.Circle(V(18, 0, 0), V(0, 0, 1), 3), False)
sketch7.addGeometry(Part.Circle(V(0, 30, 0), V(0, 0, 1), 3), False)
sketch7.addConstraint(Sketcher.Constraint("Tangent", 0, 2, 1, 1))
sketch7.addConstraint(Sketcher.Constraint("Tangent", 1, 2, 2, 1))
sketch7.addConstraint(Sketcher.Constraint("Coincident", 2, 2, 3, 1))
sketch7.addConstraint(Sketcher.Constraint("Coincident", 3, 2, 4, 1))
sketch7.addConstraint(Sketcher.Constraint("Coincident", 4, 2, 5, 1))
sketch7.addConstraint(Sketcher.Constraint("Coincident", 5, 2, 6, 1))
sketch7.addConstraint(Sketcher.Constraint("Tangent", 6, 2, 7, 1))
sketch7.addConstraint(Sketcher.Constraint("Tangent", 7, 2, 8, 1))
sketch7.addConstraint(Sketcher.Constraint("Coincident", 8, 2, 9, 1))
sketch7.addConstraint(Sketcher.Constraint("Coincident", 9, 2, 10, 1))
sketch7.addConstraint(Sketcher.Constraint("Coincident", 10, 2, 11, 1))
sketch7.addConstraint(Sketcher.Constraint("Coincident", 11, 2, 0, 1))
sketch7.addConstraint(Sketcher.Constraint("Vertical", 0))
sketch7.addConstraint(Sketcher.Constraint("Vertical", 2))
sketch7.addConstraint(Sketcher.Constraint("Vertical", 6))
sketch7.addConstraint(Sketcher.Constraint("Vertical", 8))
sketch7.addConstraint(Sketcher.Constraint("Coincident", 3, 3, -1, 1))
sketch7.addConstraint(Sketcher.Constraint("Coincident", 5, 3, -1, 1))
sketch7.addConstraint(Sketcher.Constraint("Coincident", 9, 3, -1, 1))
sketch7.addConstraint(Sketcher.Constraint("Coincident", 11, 3, -1, 1))
sketch7.addConstraint(Sketcher.Constraint("Coincident", 14, 3, -1, 1))
sketch7.addConstraint(Sketcher.Constraint("Coincident", 12, 3, 7, 3))
sketch7.addConstraint(Sketcher.Constraint("Coincident", 13, 3, 4, 3))
sketch7.addConstraint(Sketcher.Constraint("Coincident", 15, 3, 10, 3))
sketch7.addConstraint(Sketcher.Constraint("Coincident", 16, 3, 1, 3))
sketch7.addConstraint(Sketcher.Constraint("Equal", 1, 4))
sketch7.addConstraint(Sketcher.Constraint("Equal", 3, 5))
sketch7.addConstraint(Sketcher.Constraint("Equal", 4, 7))
sketch7.addConstraint(Sketcher.Constraint("Equal", 5, 9))
sketch7.addConstraint(Sketcher.Constraint("Equal", 7, 10))
sketch7.addConstraint(Sketcher.Constraint("Equal", 9, 11))
sketch7.addConstraint(Sketcher.Constraint("Equal", 12, 13))
sketch7.addConstraint(Sketcher.Constraint("Equal", 13, 15))
sketch7.addConstraint(Sketcher.Constraint("Equal", 15, 16))
sketch7.addConstraint(Sketcher.Constraint("Symmetric", 1, 3, 7, 3, -1, 1))
sketch7.addConstraint(Sketcher.Constraint("Symmetric", 4, 3, 10, 3, -1, 1))
sketch7.addConstraint(Sketcher.Constraint("PointOnObject", 1, 3, -2))
sketch7.addConstraint(Sketcher.Constraint("PointOnObject", 4, 3, -1))
sketch7.addConstraint(Sketcher.Constraint("Diameter", 12, 6.0))
sketch7.addConstraint(Sketcher.Constraint("Diameter", 14, 18.0))
sketch7.addConstraint(Sketcher.Constraint("Radius", 3, 19.999999))
sketch7.addConstraint(Sketcher.Constraint("Radius", 1, 7.5))
sketch7.addConstraint(Sketcher.Constraint("DistanceY", -1, 1, 1, 3, 30.0))
sketch7.addConstraint(Sketcher.Constraint("DistanceX", 4, 3, -1, 1, 18.0))
pad7 = body7.newObject("PartDesign::Pad", "Pad006")
pad7.Profile = sketch7
pad7.Length = 6
body8 = doc.addObject("PartDesign::Body", "Body007")

sketch8 = body8.newObject("Sketcher::SketchObject", "Sketch007")
sketch8.AttachmentSupport = (doc.getObject("XZ_Plane007"), [""])
sketch8.MapMode = "FlatFace"
sketch8.AttachmentOffset = App.Placement(V(0, 0, 18), App.Rotation())
sketch8.addGeometry(Part.Circle(V(0, 0, 0), V(0, 0, 1), 55), False)
sketch8.addGeometry(Part.LineSegment(V(-7.5, -18.540496, 0), V(-7.5, -38.272052, 0)), False)
sketch8.addGeometry(Part.ArcOfCircle(Part.Circle(V(-0.000001, 0, 0), V(0, 0, 1), 38.999999), math.radians(101.087489), math.radians(258.912511)), False)
sketch8.addGeometry(Part.LineSegment(V(-7.5, 38.272052, 0), V(-7.5, 18.540496, 0)), False)
sketch8.addGeometry(Part.ArcOfCircle(Part.Circle(V(0, 0, 0), V(0, 0, 1), 20), math.radians(112.024312), math.radians(247.975688)), False)
sketch8.addGeometry(Part.Circle(V(0, 0, 0), V(0, 0, 1), 9), False)
sketch8.addGeometry(Part.LineSegment(V(7.5, -38.272052, 0), V(7.5, -18.540496, 0)), False)
sketch8.addGeometry(Part.ArcOfCircle(Part.Circle(V(0, 0, 0), V(0, 0, 1), 20), math.radians(-67.975688), math.radians(67.975688)), False)
sketch8.addGeometry(Part.LineSegment(V(7.5, 18.540496, 0), V(7.5, 38.272052, 0)), False)
sketch8.addGeometry(Part.ArcOfCircle(Part.Circle(V(0.000001, 0, 0), V(0, 0, 1), 38.999999), math.radians(-78.912511), math.radians(78.912511)), False)
sketch8.addConstraint(Sketcher.Constraint("Coincident", 1, 2, 2, 2))
sketch8.addConstraint(Sketcher.Constraint("Coincident", 2, 1, 3, 1))
sketch8.addConstraint(Sketcher.Constraint("Coincident", 3, 2, 4, 1))
sketch8.addConstraint(Sketcher.Constraint("Coincident", 4, 2, 1, 1))
sketch8.addConstraint(Sketcher.Constraint("Coincident", 6, 2, 7, 1))
sketch8.addConstraint(Sketcher.Constraint("Coincident", 7, 2, 8, 1))
sketch8.addConstraint(Sketcher.Constraint("Coincident", 8, 2, 9, 2))
sketch8.addConstraint(Sketcher.Constraint("Coincident", 9, 1, 6, 1))
sketch8.addConstraint(Sketcher.Constraint("Vertical", 1))
sketch8.addConstraint(Sketcher.Constraint("Vertical", 3))
sketch8.addConstraint(Sketcher.Constraint("Vertical", 6))
sketch8.addConstraint(Sketcher.Constraint("Vertical", 8))
sketch8.addConstraint(Sketcher.Constraint("Coincident", 0, 3, -1, 1))
sketch8.addConstraint(Sketcher.Constraint("Coincident", 2, 3, -1, 1))
sketch8.addConstraint(Sketcher.Constraint("Coincident", 4, 3, -1, 1))
sketch8.addConstraint(Sketcher.Constraint("Coincident", 5, 3, -1, 1))
sketch8.addConstraint(Sketcher.Constraint("Coincident", 7, 3, -1, 1))
sketch8.addConstraint(Sketcher.Constraint("Coincident", 9, 3, -1, 1))
sketch8.addConstraint(Sketcher.Constraint("Equal", 4, 7))
sketch8.addConstraint(Sketcher.Constraint("Equal", 2, 9))
sketch8.addConstraint(Sketcher.Constraint("Horizontal", 4, 2, 6, 2))
sketch8.addConstraint(Sketcher.Constraint("Horizontal", 3, 2, 7, 2))
sketch8.addConstraint(Sketcher.Constraint("Vertical", 1, 2, 2, 1))
sketch8.addConstraint(Sketcher.Constraint("Diameter", 0, 110.0))
sketch8.addConstraint(Sketcher.Constraint("Diameter", 5, 18.0))
sketch8.addConstraint(Sketcher.Constraint("Radius", 2, 38.999999))
sketch8.addConstraint(Sketcher.Constraint("Radius", 4, 20.0))
sketch8.addConstraint(Sketcher.Constraint("DistanceX", 4, 2, 6, 2, 15.0))
pad8 = body8.newObject("PartDesign::Pad", "Pad007")
pad8.Profile = sketch8
pad8.Length = 6
body9 = doc.addObject("PartDesign::Body", "Body008")

sketch9 = body9.newObject("Sketcher::SketchObject", "Sketch008")
sketch9.AttachmentSupport = (doc.getObject("XZ_Plane008"), [""])
sketch9.MapMode = "FlatFace"
sketch9.AttachmentOffset = App.Placement(V(0, 0, 6), App.Rotation())
sketch9.addGeometry(Part.Circle(V(-18, 0, 0), V(0, 0, 1), 7.5), False)
sketch9.addGeometry(Part.Circle(V(-18, 0, 0), V(0, 0, 1), 3), False)
sketch9.addConstraint(Sketcher.Constraint("Coincident", 1, 3, 0, 3))
sketch9.addConstraint(Sketcher.Constraint("PointOnObject", 0, 3, -1))
sketch9.addConstraint(Sketcher.Constraint("Diameter", 0, 15.0))
sketch9.addConstraint(Sketcher.Constraint("Diameter", 1, 6.0))
sketch9.addConstraint(Sketcher.Constraint("DistanceX", 0, 3, -1, 1, 18.0))
pad9 = body9.newObject("PartDesign::Pad", "Pad008")
pad9.Profile = sketch9
pad9.Length = 6

doc.recompute()
